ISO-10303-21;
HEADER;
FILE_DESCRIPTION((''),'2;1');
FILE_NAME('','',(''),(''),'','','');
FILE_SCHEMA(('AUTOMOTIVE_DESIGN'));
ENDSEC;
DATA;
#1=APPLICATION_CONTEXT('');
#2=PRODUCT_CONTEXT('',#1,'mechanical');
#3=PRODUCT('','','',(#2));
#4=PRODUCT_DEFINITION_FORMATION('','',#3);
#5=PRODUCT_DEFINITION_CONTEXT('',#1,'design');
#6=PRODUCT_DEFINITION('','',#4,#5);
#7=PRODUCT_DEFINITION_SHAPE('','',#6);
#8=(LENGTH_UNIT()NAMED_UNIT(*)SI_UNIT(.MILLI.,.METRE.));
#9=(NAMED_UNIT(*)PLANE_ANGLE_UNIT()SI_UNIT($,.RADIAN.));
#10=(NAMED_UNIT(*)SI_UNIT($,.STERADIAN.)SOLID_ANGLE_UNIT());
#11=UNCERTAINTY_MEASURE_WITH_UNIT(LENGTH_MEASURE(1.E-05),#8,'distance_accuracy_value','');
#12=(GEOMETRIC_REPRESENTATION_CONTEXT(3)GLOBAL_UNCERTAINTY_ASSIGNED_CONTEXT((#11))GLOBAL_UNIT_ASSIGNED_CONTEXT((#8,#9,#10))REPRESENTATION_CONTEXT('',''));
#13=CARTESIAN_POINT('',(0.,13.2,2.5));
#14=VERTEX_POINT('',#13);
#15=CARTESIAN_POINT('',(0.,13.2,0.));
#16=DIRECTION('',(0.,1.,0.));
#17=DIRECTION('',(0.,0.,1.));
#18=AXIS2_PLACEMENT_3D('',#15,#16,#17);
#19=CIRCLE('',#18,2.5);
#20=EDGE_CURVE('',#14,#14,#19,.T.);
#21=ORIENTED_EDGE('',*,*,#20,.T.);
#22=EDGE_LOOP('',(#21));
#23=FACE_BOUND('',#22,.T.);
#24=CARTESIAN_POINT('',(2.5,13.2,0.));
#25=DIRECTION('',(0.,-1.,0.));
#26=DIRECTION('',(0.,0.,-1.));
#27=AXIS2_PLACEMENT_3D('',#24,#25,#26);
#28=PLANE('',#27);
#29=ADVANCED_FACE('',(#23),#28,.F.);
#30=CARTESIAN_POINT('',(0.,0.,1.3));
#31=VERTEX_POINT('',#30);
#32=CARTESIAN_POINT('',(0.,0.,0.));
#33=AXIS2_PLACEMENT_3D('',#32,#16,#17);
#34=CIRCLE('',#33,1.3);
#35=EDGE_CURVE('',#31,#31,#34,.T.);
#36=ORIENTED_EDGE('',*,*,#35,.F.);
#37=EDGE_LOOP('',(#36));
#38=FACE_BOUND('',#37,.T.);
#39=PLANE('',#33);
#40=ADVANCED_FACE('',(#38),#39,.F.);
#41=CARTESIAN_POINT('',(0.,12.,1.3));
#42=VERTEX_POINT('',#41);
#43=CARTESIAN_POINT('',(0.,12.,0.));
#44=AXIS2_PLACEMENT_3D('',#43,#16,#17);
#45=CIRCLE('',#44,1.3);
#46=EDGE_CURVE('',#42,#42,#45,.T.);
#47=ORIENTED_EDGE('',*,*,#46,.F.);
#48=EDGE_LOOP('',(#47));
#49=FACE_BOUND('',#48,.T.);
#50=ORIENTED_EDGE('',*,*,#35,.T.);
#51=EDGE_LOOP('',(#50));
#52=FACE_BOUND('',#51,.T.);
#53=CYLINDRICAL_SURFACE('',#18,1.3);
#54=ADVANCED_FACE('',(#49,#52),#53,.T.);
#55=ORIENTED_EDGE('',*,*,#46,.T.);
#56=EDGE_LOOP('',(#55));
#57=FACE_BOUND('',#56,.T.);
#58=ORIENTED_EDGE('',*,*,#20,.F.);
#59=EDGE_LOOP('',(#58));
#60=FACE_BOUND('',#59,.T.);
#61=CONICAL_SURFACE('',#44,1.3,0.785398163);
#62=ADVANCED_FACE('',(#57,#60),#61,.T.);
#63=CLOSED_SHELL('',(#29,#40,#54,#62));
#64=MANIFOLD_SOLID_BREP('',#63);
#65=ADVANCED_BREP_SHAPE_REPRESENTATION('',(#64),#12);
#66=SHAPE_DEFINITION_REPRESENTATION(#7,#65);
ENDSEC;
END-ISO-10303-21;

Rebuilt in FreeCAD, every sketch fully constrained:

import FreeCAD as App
import Part
import Sketcher
from FreeCAD import Vector
Q = App.Units.Quantity


def add_polygon(sketch, points):
    """Adds a closed chain of lines whose ends are joined by coincident constraints."""
    first, n = sketch.GeometryCount, len(points)
    for a, b in zip(points, points[1:] + points[:1]):
        sketch.addGeometry(Part.LineSegment(App.Vector(*a, 0), App.Vector(*b, 0)), False)
    for i in range(n):
        sketch.addConstraint(Sketcher.Constraint("Coincident", first + i, 2, first + (i + 1) % n, 1))

doc = App.newDocument("Part")
body = doc.addObject("PartDesign::Body", "Body")

# Sketch on XY plane
sketch1 = body.newObject("Sketcher::SketchObject", "Sketch")
sketch1.AttachmentSupport = (doc.getObject("XY_Plane"), [""])
sketch1.MapMode = "FlatFace"
add_polygon(sketch1, [(0, 0), (1.3, 0), (1.3, 12), (2.5, 13.2), (0, 13.2)])  # lines 0-4
sketch1.addConstraint([
    Sketcher.Constraint("Horizontal", 0),
    Sketcher.Constraint("Vertical", 1),
    Sketcher.Constraint("Horizontal", 3),
    Sketcher.Constraint("Vertical", 4),
    Sketcher.Constraint("Coincident", 4, 2, -1, 1),
    Sketcher.Constraint("DistanceY", 1, 1, 1, 2, Q("12 mm")),
    Sketcher.Constraint("Angle", 2, Q("45 deg")),
    Sketcher.Constraint("DistanceX", 0, 1, 0, 2, Q("1.3 mm")),
    Sketcher.Constraint("DistanceX", 3, 2, 3, 1, Q("2.5 mm")),
])
revolution = body.newObject("PartDesign::Revolution", "Revolution")
revolution.Profile = sketch1
revolution.ReferenceAxis = (sketch1, ["V_Axis"])
revolution.Angle = 360

doc.recompute()
